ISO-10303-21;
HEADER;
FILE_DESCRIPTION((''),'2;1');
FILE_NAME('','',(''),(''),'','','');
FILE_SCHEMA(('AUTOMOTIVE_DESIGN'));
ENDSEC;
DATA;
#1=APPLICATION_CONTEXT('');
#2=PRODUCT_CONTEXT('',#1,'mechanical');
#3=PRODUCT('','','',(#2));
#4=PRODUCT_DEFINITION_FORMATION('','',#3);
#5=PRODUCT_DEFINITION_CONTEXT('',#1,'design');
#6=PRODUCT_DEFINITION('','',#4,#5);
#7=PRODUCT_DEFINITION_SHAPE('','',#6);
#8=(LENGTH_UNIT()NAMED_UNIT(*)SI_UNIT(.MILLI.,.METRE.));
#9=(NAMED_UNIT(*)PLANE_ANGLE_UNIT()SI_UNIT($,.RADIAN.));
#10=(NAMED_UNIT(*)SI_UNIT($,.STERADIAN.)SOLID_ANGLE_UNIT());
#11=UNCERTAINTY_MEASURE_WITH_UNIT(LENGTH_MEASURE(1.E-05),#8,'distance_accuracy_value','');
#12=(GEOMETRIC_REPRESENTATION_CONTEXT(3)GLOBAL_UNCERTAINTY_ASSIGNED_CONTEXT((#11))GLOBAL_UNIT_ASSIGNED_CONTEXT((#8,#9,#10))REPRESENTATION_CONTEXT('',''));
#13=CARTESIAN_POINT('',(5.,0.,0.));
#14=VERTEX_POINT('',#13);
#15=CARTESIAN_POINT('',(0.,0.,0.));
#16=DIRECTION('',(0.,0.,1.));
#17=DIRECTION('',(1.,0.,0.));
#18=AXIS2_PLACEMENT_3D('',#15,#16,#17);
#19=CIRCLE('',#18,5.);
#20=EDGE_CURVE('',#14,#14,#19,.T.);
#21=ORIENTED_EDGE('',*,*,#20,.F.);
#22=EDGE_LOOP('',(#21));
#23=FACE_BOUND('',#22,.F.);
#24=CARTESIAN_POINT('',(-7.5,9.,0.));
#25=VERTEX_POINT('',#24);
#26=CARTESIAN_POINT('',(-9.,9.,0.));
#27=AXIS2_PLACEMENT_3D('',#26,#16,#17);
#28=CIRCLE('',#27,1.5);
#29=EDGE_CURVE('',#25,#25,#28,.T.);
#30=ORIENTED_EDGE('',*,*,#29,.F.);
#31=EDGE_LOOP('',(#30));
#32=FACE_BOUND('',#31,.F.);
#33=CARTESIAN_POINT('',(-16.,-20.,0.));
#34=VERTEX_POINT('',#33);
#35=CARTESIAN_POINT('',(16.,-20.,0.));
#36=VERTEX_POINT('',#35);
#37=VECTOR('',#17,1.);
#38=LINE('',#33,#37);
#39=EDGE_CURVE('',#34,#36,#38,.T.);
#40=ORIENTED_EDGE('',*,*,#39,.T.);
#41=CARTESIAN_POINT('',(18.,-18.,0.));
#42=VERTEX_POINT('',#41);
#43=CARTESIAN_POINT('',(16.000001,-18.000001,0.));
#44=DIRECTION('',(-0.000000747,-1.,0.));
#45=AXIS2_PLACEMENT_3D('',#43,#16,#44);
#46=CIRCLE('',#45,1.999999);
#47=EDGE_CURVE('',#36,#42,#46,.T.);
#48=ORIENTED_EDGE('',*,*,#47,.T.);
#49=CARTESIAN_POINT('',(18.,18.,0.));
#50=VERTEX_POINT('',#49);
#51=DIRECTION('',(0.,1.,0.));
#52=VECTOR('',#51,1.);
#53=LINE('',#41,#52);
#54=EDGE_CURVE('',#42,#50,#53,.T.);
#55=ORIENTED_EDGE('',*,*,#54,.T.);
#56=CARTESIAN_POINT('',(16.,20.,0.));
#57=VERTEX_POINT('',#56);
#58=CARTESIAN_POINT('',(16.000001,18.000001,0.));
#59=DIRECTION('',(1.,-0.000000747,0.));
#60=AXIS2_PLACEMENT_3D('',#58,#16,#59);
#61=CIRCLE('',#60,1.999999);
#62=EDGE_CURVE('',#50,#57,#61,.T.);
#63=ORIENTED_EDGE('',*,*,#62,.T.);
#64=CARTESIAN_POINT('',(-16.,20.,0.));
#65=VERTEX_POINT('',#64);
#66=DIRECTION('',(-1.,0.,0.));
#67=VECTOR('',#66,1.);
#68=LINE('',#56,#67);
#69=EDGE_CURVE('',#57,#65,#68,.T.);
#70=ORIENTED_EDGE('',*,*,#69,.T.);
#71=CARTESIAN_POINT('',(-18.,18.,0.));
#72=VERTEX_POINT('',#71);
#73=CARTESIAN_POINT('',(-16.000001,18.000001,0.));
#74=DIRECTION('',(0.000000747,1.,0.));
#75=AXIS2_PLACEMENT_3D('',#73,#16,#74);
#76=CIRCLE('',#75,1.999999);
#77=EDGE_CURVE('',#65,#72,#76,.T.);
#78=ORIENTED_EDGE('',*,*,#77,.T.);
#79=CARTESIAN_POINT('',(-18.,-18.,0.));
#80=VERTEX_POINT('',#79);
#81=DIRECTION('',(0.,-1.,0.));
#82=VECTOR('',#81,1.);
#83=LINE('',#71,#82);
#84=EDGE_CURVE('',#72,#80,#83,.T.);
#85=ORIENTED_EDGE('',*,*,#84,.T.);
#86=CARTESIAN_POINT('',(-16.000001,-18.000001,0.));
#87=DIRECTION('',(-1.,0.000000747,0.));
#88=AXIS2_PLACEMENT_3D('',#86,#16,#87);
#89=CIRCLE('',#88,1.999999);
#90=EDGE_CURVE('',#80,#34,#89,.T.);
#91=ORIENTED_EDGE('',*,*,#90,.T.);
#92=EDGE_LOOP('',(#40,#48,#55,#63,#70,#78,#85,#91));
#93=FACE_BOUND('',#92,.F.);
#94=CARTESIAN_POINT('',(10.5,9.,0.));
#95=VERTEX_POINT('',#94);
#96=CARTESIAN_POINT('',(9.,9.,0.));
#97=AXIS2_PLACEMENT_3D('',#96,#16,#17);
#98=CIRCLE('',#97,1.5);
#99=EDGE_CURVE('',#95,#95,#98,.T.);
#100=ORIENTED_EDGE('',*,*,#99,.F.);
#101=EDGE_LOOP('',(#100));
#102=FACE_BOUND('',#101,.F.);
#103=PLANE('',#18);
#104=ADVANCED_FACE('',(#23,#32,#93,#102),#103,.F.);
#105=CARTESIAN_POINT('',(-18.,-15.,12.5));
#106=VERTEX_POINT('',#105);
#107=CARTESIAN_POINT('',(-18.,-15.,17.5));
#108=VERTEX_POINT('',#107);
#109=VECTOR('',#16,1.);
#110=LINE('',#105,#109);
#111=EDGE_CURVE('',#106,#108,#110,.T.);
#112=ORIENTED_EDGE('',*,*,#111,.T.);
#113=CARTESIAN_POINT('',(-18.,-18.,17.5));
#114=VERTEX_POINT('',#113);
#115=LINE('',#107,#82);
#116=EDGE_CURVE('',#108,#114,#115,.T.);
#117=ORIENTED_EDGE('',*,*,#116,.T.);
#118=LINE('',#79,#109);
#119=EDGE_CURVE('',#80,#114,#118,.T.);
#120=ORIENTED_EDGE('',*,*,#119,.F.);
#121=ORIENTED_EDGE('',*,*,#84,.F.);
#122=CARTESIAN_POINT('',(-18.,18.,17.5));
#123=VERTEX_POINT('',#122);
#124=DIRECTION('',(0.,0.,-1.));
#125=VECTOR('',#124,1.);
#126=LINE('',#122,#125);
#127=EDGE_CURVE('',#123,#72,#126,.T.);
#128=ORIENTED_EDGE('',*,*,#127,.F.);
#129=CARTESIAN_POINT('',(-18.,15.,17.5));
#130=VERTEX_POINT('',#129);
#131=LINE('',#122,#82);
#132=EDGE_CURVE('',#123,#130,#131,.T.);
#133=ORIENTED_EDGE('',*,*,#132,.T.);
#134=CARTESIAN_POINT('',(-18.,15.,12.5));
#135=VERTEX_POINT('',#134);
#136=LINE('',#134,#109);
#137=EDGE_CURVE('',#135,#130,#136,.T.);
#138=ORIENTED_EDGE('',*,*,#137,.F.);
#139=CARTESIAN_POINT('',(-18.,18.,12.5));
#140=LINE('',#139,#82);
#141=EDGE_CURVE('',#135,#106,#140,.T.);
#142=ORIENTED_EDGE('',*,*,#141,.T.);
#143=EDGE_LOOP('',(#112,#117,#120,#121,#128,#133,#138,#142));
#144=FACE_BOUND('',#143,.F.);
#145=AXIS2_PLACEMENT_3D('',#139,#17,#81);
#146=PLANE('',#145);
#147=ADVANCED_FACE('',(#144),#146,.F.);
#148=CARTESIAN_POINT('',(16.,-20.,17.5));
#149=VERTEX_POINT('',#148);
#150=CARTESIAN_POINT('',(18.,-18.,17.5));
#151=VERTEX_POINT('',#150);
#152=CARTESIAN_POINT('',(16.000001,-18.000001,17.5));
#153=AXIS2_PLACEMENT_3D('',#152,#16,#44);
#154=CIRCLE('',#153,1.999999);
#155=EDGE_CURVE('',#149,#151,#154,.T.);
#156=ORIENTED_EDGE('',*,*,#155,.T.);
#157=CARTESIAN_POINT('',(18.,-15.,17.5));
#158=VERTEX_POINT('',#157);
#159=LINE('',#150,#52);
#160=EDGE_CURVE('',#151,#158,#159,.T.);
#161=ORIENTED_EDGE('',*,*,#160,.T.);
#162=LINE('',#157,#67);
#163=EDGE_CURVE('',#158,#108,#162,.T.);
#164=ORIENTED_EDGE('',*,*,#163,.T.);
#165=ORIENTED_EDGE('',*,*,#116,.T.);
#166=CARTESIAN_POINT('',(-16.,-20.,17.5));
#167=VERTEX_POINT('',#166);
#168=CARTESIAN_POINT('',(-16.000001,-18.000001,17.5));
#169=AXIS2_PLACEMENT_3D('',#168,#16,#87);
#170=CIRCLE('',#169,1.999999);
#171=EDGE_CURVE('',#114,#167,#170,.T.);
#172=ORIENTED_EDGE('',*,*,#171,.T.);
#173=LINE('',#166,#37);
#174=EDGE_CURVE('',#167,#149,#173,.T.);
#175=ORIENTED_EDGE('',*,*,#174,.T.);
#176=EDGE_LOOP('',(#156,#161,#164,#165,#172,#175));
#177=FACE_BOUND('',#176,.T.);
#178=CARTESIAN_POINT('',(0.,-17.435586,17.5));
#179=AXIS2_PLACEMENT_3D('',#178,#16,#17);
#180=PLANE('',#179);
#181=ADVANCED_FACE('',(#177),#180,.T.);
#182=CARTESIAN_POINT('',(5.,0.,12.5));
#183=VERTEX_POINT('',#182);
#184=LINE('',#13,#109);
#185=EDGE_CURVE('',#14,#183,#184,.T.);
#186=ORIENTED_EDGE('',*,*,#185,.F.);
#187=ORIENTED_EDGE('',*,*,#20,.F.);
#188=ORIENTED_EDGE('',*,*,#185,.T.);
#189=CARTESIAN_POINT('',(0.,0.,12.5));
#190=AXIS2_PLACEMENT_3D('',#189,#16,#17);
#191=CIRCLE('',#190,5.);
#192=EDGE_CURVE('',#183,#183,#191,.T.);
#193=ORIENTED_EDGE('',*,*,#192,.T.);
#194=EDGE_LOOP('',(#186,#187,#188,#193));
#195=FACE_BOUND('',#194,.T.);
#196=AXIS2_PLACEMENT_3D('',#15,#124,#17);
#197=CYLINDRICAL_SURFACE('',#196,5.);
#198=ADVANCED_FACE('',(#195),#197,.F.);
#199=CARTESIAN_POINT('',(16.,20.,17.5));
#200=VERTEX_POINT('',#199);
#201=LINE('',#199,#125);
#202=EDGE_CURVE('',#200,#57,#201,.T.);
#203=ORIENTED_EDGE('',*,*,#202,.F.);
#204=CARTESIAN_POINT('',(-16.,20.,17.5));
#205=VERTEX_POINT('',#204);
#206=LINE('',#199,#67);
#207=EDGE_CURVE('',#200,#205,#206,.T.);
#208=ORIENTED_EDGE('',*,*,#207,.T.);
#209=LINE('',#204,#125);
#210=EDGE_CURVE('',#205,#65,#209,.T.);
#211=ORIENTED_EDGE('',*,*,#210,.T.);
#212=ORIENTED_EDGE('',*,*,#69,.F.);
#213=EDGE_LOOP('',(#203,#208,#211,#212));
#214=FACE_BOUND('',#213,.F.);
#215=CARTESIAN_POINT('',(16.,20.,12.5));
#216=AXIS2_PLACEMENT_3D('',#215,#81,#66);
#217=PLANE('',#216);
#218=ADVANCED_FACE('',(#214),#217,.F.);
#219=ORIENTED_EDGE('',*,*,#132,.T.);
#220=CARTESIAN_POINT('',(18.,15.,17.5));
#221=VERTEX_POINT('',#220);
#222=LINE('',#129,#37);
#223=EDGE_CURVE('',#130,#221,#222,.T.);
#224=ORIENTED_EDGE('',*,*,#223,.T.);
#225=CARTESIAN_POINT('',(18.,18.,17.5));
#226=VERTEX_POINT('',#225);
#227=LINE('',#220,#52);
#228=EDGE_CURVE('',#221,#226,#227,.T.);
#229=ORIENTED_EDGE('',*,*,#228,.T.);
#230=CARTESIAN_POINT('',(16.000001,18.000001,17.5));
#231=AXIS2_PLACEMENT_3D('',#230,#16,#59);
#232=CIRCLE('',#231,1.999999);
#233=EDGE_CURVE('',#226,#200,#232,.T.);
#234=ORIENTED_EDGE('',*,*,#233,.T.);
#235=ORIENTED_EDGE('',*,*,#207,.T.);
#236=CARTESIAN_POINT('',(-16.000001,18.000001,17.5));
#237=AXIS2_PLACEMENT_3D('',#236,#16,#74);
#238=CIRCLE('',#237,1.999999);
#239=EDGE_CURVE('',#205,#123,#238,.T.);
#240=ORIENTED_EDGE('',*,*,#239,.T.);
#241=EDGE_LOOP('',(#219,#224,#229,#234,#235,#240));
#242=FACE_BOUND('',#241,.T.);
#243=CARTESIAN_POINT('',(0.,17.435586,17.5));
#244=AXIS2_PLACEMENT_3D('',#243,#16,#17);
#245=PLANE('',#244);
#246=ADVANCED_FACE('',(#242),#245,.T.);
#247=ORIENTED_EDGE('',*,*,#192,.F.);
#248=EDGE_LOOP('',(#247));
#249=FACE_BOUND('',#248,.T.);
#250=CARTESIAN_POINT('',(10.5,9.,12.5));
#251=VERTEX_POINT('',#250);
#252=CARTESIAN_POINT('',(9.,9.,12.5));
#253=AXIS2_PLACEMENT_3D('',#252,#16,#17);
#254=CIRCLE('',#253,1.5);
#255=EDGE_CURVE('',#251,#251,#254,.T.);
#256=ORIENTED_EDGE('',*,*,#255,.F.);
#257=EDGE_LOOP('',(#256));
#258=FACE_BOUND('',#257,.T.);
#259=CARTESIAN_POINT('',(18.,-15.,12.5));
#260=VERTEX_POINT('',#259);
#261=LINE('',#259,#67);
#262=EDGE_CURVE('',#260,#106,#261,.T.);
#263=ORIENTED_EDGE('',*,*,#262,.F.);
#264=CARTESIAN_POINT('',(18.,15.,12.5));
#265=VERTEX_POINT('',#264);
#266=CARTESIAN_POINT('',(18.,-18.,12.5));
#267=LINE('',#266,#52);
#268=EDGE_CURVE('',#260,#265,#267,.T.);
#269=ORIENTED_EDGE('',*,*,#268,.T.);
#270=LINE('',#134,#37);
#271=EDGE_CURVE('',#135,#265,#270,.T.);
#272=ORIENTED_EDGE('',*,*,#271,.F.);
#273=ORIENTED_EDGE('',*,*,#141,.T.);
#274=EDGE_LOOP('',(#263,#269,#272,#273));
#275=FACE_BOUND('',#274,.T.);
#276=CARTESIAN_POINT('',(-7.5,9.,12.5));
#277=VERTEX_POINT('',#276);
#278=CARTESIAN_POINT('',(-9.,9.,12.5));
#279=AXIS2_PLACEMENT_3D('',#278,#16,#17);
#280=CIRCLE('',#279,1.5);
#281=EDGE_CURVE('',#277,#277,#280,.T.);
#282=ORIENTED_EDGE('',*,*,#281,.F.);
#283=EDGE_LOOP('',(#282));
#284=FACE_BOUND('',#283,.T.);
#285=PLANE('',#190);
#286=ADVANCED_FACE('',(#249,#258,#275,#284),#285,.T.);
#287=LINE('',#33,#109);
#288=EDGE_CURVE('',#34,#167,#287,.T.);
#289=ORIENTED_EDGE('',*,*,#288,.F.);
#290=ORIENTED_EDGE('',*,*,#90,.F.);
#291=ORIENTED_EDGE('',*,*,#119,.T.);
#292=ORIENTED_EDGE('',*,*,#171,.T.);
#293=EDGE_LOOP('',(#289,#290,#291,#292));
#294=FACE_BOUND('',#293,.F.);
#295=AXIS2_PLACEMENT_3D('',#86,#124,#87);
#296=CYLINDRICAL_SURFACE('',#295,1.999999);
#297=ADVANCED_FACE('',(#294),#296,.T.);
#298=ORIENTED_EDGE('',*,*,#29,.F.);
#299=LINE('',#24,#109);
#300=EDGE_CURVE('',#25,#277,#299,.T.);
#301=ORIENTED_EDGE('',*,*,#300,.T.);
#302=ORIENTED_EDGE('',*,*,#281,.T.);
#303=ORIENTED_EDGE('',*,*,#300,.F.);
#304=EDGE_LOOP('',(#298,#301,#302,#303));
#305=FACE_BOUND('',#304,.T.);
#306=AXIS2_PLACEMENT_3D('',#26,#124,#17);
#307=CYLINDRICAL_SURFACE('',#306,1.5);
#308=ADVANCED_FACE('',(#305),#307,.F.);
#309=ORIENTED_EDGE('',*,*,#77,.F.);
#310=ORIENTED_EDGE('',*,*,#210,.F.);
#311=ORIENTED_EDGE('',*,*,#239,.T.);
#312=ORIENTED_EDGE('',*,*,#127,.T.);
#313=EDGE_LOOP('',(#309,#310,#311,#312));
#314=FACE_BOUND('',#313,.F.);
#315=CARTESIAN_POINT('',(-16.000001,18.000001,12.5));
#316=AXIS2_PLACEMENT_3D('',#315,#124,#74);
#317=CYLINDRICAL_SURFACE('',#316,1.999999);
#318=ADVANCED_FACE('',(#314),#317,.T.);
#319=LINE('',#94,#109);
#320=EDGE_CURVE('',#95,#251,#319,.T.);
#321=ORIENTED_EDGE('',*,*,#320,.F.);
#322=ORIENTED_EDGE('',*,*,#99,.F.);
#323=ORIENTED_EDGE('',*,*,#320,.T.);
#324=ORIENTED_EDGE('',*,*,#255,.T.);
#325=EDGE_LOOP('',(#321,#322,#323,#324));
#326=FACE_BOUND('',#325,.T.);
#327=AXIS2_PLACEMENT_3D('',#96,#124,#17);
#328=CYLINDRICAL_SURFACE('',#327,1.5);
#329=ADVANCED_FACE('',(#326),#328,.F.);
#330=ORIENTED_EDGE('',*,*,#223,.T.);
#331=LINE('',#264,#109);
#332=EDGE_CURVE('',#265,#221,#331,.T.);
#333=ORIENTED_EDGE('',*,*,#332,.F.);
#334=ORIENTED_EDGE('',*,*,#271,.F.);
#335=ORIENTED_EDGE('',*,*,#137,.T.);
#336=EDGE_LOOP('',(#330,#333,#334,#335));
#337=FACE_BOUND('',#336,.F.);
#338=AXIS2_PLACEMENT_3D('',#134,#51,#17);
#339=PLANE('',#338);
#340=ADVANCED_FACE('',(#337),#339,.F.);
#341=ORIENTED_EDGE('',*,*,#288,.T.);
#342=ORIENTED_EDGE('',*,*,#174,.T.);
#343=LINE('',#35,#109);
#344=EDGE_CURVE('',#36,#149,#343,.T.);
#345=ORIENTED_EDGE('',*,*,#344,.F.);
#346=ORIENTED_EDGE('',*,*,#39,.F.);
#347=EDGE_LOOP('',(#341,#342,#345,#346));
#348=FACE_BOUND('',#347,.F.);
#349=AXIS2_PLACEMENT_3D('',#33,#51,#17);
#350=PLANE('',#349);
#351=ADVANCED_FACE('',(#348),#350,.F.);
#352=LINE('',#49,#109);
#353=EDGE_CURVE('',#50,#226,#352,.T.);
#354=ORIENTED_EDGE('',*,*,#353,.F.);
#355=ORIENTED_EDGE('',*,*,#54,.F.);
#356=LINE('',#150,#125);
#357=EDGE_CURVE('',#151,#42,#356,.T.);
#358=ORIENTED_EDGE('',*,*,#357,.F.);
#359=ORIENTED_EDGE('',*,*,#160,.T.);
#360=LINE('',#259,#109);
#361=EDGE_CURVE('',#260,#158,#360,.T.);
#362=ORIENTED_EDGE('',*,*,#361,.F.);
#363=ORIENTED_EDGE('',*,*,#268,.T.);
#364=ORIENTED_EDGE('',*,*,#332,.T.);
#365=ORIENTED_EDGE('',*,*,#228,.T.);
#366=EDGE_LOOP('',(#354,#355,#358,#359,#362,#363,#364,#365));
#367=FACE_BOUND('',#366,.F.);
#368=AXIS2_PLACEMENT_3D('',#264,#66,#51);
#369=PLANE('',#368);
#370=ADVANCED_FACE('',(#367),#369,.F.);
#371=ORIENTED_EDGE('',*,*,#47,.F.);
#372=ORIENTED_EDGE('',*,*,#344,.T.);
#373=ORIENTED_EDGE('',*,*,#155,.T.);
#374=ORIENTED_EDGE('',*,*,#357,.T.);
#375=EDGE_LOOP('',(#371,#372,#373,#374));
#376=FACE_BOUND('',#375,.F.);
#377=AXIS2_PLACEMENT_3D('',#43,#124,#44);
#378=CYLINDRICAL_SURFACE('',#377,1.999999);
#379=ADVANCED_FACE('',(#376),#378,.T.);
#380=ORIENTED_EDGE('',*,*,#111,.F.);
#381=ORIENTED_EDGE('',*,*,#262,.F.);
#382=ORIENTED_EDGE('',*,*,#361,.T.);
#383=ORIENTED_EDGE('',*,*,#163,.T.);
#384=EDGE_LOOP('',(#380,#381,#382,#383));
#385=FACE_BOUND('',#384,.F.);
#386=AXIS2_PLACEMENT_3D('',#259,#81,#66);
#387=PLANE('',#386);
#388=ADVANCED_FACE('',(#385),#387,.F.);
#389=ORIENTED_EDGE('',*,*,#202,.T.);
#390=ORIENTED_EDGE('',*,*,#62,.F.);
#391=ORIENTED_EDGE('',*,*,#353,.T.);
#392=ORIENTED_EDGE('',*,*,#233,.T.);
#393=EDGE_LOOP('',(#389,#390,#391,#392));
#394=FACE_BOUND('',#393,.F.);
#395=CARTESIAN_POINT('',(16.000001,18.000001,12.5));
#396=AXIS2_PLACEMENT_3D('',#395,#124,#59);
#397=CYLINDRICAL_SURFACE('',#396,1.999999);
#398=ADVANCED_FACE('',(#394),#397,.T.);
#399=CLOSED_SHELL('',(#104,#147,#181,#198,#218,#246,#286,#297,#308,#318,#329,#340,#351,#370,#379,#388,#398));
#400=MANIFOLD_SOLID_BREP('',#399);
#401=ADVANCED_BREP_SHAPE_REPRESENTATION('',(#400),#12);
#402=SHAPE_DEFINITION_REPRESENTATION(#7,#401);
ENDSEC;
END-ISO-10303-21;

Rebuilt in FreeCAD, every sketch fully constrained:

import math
import FreeCAD as App
import Part
import Sketcher

doc = App.newDocument("Part")
body = doc.addObject("PartDesign::Body", "Body")

# Sketch on XY plane
sketch1 = doc.addObject("Sketcher::SketchObject", "Sketch")
body.addObject(sketch1)
sketch1.AttachmentSupport = (doc.XY_Plane, [""])
sketch1.MapMode = "FlatFace"
sketch1.addGeometry(Part.ArcOfCircle(Part.Circle(App.Vector(16.000001, 18.000001, 0), App.Vector(0, 0, 1), 1.999999), math.radians(-0.000043), math.radians(90.000043)), False)
sketch1.addGeometry(Part.LineSegment(App.Vector(16, 20, 0), App.Vector(-16, 20, 0)), False)
sketch1.addGeometry(Part.ArcOfCircle(Part.Circle(App.Vector(-16.000001, 18.000001, 0), App.Vector(0, 0, 1), 1.999999), math.radians(89.999957), math.radians(180.000043)), False)
sketch1.addGeometry(Part.LineSegment(App.Vector(-18, 18, 0), App.Vector(-18, -18, 0)), False)
sketch1.addGeometry(Part.ArcOfCircle(Part.Circle(App.Vector(-16.000001, -18.000001, 0), App.Vector(0, 0, 1), 1.999999), math.radians(179.999957), math.radians(270.000043)), False)
sketch1.addGeometry(Part.LineSegment(App.Vector(-16, -20, 0), App.Vector(16, -20, 0)), False)
sketch1.addGeometry(Part.ArcOfCircle(Part.Circle(App.Vector(16.000001, -18.000001, 0), App.Vector(0, 0, 1), 1.999999), math.radians(-90.000043), math.radians(0.000043)), False)
sketch1.addGeometry(Part.LineSegment(App.Vector(18, -18, 0), App.Vector(18, 18, 0)), False)
sketch1.addGeometry(Part.Circle(App.Vector(0, 0, 0), App.Vector(0, 0, 1), 5), False)
sketch1.addGeometry(Part.Circle(App.Vector(-9, 9, 0), App.Vector(0, 0, 1), 1.5), False)
sketch1.addGeometry(Part.Circle(App.Vector(9, 9, 0), App.Vector(0, 0, 1), 1.5), False)
sketch1.addConstraint(Sketcher.Constraint("Tangent", 0, 2, 1, 1))
sketch1.addConstraint(Sketcher.Constraint("Tangent", 1, 2, 2, 1))
sketch1.addConstraint(Sketcher.Constraint("Tangent", 2, 2, 3, 1))
sketch1.addConstraint(Sketcher.Constraint("Tangent", 3, 2, 4, 1))
sketch1.addConstraint(Sketcher.Constraint("Tangent", 4, 2, 5, 1))
sketch1.addConstraint(Sketcher.Constraint("Tangent", 5, 2, 6, 1))
sketch1.addConstraint(Sketcher.Constraint("Tangent", 6, 2, 7, 1))
sketch1.addConstraint(Sketcher.Constraint("Tangent", 7, 2, 0, 1))
sketch1.addConstraint(Sketcher.Constraint("Horizontal", 1))
sketch1.addConstraint(Sketcher.Constraint("Vertical", 3))
sketch1.addConstraint(Sketcher.Constraint("Horizontal", 5))
sketch1.addConstraint(Sketcher.Constraint("Vertical", 7))
sketch1.addConstraint(Sketcher.Constraint("Coincident", 8, 3, -1, 1))
sketch1.addConstraint(Sketcher.Constraint("Equal", 0, 2))
sketch1.addConstraint(Sketcher.Constraint("Equal", 2, 4))
sketch1.addConstraint(Sketcher.Constraint("Equal", 4, 6))
sketch1.addConstraint(Sketcher.Constraint("Equal", 9, 10))
sketch1.addConstraint(Sketcher.Constraint("Symmetric", 0, 3, 4, 3, -1, 1))
sketch1.addConstraint(Sketcher.Constraint("Symmetric", 9, 3, 10, 3, -2))
sketch1.addConstraint(Sketcher.Constraint("Diameter", 8, 10.0))
sketch1.addConstraint(Sketcher.Constraint("Diameter", 9, 3.0))
sketch1.addConstraint(Sketcher.Constraint("Radius", 0, 1.999999))
sketch1.addConstraint(Sketcher.Constraint("DistanceX", 1, 2, 1, 1, 32.0))
sketch1.addConstraint(Sketcher.Constraint("DistanceY", 3, 2, 3, 1, 36.0))
sketch1.addConstraint(Sketcher.Constraint("DistanceX", 9, 3, -1, 1, 9.0))
sketch1.addConstraint(Sketcher.Constraint("DistanceY", -1, 1, 9, 3, 9.0))
pad1 = doc.addObject("PartDesign::Pad", "Pad")
body.addObject(pad1)
pad1.Profile = sketch1
pad1.Length = 12.5

# Sketch on XY plane
sketch2 = doc.addObject("Sketcher::SketchObject", "Sketch001")
body.addObject(sketch2)
sketch2.AttachmentSupport = (doc.XY_Plane, [""])
sketch2.MapMode = "FlatFace"
sketch2.AttachmentOffset = App.Placement(App.Vector(0, 0, 12.5), App.Rotation())
sketch2.addGeometry(Part.LineSegment(App.Vector(-18, 18, 0), App.Vector(-18, 15, 0)), False)
sketch2.addGeometry(Part.LineSegment(App.Vector(-18, 15, 0), App.Vector(18, 15, 0)), False)
sketch2.addGeometry(Part.LineSegment(App.Vector(18, 15, 0), App.Vector(18, 18, 0)), False)
sketch2.addGeometry(Part.ArcOfCircle(Part.Circle(App.Vector(16.000001, 18.000001, 0), App.Vector(0, 0, 1), 1.999999), math.radians(-0.000043), math.radians(90.000043)), False)
sketch2.addGeometry(Part.LineSegment(App.Vector(16, 20, 0), App.Vector(-16, 20, 0)), False)
sketch2.addGeometry(Part.ArcOfCircle(Part.Circle(App.Vector(-16.000001, 18.000001, 0), App.Vector(0, 0, 1), 1.999999), math.radians(89.999957), math.radians(180.000043)), False)
sketch2.addGeometry(Part.LineSegment(App.Vector(18, -15, 0), App.Vector(-18, -15, 0)), False)
sketch2.addGeometry(Part.LineSegment(App.Vector(-18, -15, 0), App.Vector(-18, -18, 0)), False)
sketch2.addGeometry(Part.ArcOfCircle(Part.Circle(App.Vector(-16.000001, -18.000001, 0), App.Vector(0, 0, 1), 1.999999), math.radians(179.999957), math.radians(270.000043)), False)
sketch2.addGeometry(Part.LineSegment(App.Vector(-16, -20, 0), App.Vector(16, -20, 0)), False)
sketch2.addGeometry(Part.ArcOfCircle(Part.Circle(App.Vector(16.000001, -18.000001, 0), App.Vector(0, 0, 1), 1.999999), math.radians(-90.000043), math.radians(0.000043)), False)
sketch2.addGeometry(Part.LineSegment(App.Vector(18, -18, 0), App.Vector(18, -15, 0)), False)
sketch2.addConstraint(Sketcher.Constraint("Coincident", 0, 2, 1, 1))
sketch2.addConstraint(Sketcher.Constraint("Coincident", 1, 2, 2, 1))
sketch2.addConstraint(Sketcher.Constraint("Tangent", 2, 2, 3, 1))
sketch2.addConstraint(Sketcher.Constraint("Tangent", 3, 2, 4, 1))
sketch2.addConstraint(Sketcher.Constraint("Tangent", 4, 2, 5, 1))
sketch2.addConstraint(Sketcher.Constraint("Tangent", 5, 2, 0, 1))
sketch2.addConstraint(Sketcher.Constraint("Coincident", 6, 2, 7, 1))
sketch2.addConstraint(Sketcher.Constraint("Tangent", 7, 2, 8, 1))
sketch2.addConstraint(Sketcher.Constraint("Tangent", 8, 2, 9, 1))
sketch2.addConstraint(Sketcher.Constraint("Tangent", 9, 2, 10, 1))
sketch2.addConstraint(Sketcher.Constraint("Tangent", 10, 2, 11, 1))
sketch2.addConstraint(Sketcher.Constraint("Coincident", 11, 2, 6, 1))
sketch2.addConstraint(Sketcher.Constraint("Vertical", 0))
sketch2.addConstraint(Sketcher.Constraint("Horizontal", 1))
sketch2.addConstraint(Sketcher.Constraint("Vertical", 2))
sketch2.addConstraint(Sketcher.Constraint("Horizontal", 4))
sketch2.addConstraint(Sketcher.Constraint("Horizontal", 6))
sketch2.addConstraint(Sketcher.Constraint("Vertical", 7))
sketch2.addConstraint(Sketcher.Constraint("Horizontal", 9))
sketch2.addConstraint(Sketcher.Constraint("Vertical", 11))
sketch2.addConstraint(Sketcher.Constraint("Equal", 3, 5))
sketch2.addConstraint(Sketcher.Constraint("Equal", 5, 8))
sketch2.addConstraint(Sketcher.Constraint("Equal", 8, 10))
sketch2.addConstraint(Sketcher.Constraint("Symmetric", 3, 3, 8, 3, -1, 1))
sketch2.addConstraint(Sketcher.Constraint("Symmetric", 0, 2, 11, 2, -1, 1))
sketch2.addConstraint(Sketcher.Constraint("Vertical", 5, 3, 8, 3))
sketch2.addConstraint(Sketcher.Constraint("Radius", 3, 1.999999))
sketch2.addConstraint(Sketcher.Constraint("DistanceX", 1, 1, 1, 2, 36.0))
sketch2.addConstraint(Sketcher.Constraint("DistanceY", 0, 2, 0, 1, 3.0))
sketch2.addConstraint(Sketcher.Constraint("DistanceY", -1, 1, 3, 3, 18.000001))
pad2 = doc.addObject("PartDesign::Pad", "Pad001")
body.addObject(pad2)
pad2.Profile = sketch2
pad2.Length = 5

doc.recompute()
